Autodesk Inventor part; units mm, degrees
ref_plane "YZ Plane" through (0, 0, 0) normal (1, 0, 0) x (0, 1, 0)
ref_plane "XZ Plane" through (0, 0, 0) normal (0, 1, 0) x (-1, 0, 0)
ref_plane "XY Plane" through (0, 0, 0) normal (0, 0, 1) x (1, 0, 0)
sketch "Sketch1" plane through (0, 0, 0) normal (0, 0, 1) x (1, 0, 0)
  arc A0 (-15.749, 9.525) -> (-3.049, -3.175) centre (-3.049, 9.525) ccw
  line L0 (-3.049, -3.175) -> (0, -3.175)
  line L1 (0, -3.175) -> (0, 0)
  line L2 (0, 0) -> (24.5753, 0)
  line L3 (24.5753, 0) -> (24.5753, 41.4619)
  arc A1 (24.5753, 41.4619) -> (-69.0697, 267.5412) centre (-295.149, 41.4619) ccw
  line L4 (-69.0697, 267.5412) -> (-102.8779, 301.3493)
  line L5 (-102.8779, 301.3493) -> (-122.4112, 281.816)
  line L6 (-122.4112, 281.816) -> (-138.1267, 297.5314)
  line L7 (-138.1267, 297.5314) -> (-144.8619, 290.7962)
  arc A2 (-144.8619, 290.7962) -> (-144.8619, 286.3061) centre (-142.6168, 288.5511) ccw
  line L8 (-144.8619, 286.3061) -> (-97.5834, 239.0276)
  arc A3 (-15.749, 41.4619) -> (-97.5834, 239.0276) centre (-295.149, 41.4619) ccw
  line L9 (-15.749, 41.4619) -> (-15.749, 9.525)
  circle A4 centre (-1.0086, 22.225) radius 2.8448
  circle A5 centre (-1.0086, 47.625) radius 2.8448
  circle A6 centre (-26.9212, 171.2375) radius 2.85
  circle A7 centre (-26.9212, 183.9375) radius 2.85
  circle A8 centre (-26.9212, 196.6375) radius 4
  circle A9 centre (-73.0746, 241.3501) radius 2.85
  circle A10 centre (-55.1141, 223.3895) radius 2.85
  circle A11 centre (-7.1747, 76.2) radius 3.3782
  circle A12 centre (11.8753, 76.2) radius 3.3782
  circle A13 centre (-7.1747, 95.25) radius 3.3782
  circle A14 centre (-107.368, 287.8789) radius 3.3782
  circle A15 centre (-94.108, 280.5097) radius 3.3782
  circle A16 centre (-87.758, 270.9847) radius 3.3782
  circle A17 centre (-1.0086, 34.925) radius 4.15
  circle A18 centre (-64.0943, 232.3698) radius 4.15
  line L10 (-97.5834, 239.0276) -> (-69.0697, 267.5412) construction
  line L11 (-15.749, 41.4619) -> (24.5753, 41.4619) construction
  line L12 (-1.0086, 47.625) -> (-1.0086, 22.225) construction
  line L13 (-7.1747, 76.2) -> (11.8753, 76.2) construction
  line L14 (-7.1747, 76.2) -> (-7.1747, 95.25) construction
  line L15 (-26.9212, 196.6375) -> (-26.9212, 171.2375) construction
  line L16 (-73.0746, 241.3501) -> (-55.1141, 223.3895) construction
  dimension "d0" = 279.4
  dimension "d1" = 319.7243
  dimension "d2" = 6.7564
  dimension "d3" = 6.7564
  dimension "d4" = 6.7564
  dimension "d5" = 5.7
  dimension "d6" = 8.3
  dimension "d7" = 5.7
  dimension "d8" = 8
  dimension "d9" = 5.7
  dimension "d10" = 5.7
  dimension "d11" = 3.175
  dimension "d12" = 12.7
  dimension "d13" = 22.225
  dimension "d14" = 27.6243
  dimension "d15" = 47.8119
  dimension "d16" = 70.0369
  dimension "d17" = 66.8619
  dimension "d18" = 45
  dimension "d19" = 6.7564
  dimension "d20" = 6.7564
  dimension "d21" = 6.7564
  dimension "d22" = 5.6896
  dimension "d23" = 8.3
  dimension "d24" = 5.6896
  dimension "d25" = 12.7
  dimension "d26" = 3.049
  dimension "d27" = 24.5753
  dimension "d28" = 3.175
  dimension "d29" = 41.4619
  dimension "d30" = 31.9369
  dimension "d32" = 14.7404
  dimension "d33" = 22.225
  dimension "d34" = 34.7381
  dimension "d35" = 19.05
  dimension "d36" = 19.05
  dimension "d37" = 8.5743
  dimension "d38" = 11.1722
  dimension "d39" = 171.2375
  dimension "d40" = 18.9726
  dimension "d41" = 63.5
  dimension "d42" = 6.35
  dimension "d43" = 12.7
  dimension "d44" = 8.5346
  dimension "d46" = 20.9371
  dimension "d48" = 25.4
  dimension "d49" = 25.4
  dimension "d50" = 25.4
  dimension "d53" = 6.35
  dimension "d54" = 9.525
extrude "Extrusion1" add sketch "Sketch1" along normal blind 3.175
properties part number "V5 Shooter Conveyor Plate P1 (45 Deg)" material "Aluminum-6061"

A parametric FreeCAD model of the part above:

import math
import FreeCAD as App
import Part
import Sketcher
Q = App.Units.Quantity

doc = App.newDocument("Part")
body = doc.addObject("PartDesign::Body", "Body")

sketch1 = doc.addObject("Sketcher::SketchObject", "Sketch")
body.addObject(sketch1)
sketch1.AttachmentSupport = (doc.XY_Plane, [""])
sketch1.MapMode = "FlatFace"
sketch1.addGeometry(Part.LineSegment(App.Vector(-15.7, 41.5, 0), App.Vector(-15.7, 9.5, 0)), False)
sketch1.addGeometry(Part.ArcOfCircle(Part.Circle(App.Vector(-3, 9.5, 0), App.Vector(0, 0, 1), 12.7), math.radians(180), math.radians(270)), False)
sketch1.addGeometry(Part.LineSegment(App.Vector(-3, -3.2, 0), App.Vector(0, -3.2, 0)), False)
sketch1.addGeometry(Part.LineSegment(App.Vector(0, -3.2, 0), App.Vector(0, 0, 0)), False)
sketch1.addGeometry(Part.LineSegment(App.Vector(0, 0, 0), App.Vector(24.6, 0, 0)), False)
sketch1.addGeometry(Part.LineSegment(App.Vector(24.6, 0, 0), App.Vector(24.6, 41.5, 0)), False)
sketch1.addGeometry(Part.ArcOfCircle(Part.Circle(App.Vector(-295.1, 41.5, 0), App.Vector(0, 0, 1), 319.7), math.radians(0), math.radians(45)), False)
sketch1.addGeometry(Part.LineSegment(App.Vector(-69.1, 267.5, 0), App.Vector(-102.9, 301.3, 0)), False)
sketch1.addGeometry(Part.LineSegment(App.Vector(-102.9, 301.3, 0), App.Vector(-122.4, 281.8, 0)), False)
sketch1.addGeometry(Part.LineSegment(App.Vector(-122.4, 281.8, 0), App.Vector(-138.1, 297.5, 0)), False)
sketch1.addGeometry(Part.LineSegment(App.Vector(-138.1, 297.5, 0), App.Vector(-144.9, 290.8, 0)), False)
sketch1.addGeometry(Part.ArcOfCircle(Part.Circle(App.Vector(-142.6, 288.6, 0), App.Vector(0, 0, 1), 3.2), math.radians(135), math.radians(225)), False)
sketch1.addGeometry(Part.LineSegment(App.Vector(-144.9, 286.3, 0), App.Vector(-97.6, 239, 0)), False)
sketch1.addGeometry(Part.ArcOfCircle(Part.Circle(App.Vector(-295.1, 41.5, 0), App.Vector(0, 0, 1), 279.4), math.radians(0), math.radians(45)), False)
sketch1.addGeometry(Part.Circle(App.Vector(-1, 22.2, 0), App.Vector(0, 0, 1), 2.8), False)
sketch1.addGeometry(Part.Circle(App.Vector(-1, 34.9, 0), App.Vector(0, 0, 1), 4.2), False)
sketch1.addGeometry(Part.Circle(App.Vector(-1, 47.6, 0), App.Vector(0, 0, 1), 2.8), False)
sketch1.addGeometry(Part.Circle(App.Vector(-7.2, 76.2, 0), App.Vector(0, 0, 1), 3.4), False)
sketch1.addGeometry(Part.Circle(App.Vector(-7.2, 95.2, 0), App.Vector(0, 0, 1), 3.4), False)
sketch1.addGeometry(Part.Circle(App.Vector(11.9, 76.2, 0), App.Vector(0, 0, 1), 3.4), False)
sketch1.addGeometry(Part.Circle(App.Vector(-107.4, 287.9, 0), App.Vector(0, 0, 1), 3.4), False)
sketch1.addGeometry(Part.Circle(App.Vector(-73.1, 241.4, 0), App.Vector(0, 0, 1), 2.9), False)
sketch1.addGeometry(Part.Circle(App.Vector(-64.1, 232.4, 0), App.Vector(0, 0, 1), 4.2), False)
sketch1.addGeometry(Part.Circle(App.Vector(-94.1, 280.5, 0), App.Vector(0, 0, 1), 3.4), False)
sketch1.addGeometry(Part.Circle(App.Vector(-87.8, 271, 0), App.Vector(0, 0, 1), 3.4), False)
sketch1.addGeometry(Part.Circle(App.Vector(-26.9, 171.2, 0), App.Vector(0, 0, 1), 2.9), False)
sketch1.addGeometry(Part.Circle(App.Vector(-26.9, 183.9, 0), App.Vector(0, 0, 1), 2.9), False)
sketch1.addGeometry(Part.Circle(App.Vector(-55.1, 223.4, 0), App.Vector(0, 0, 1), 2.9), False)
sketch1.addGeometry(Part.Circle(App.Vector(-26.9, 196.6, 0), App.Vector(0, 0, 1), 4), False)
sketch1.addConstraint(Sketcher.Constraint("Tangent", 0, 2, 1, 1))
sketch1.addConstraint(Sketcher.Constraint("Tangent", 1, 2, 2, 1))
sketch1.addConstraint(Sketcher.Constraint("Coincident", 2, 2, 3, 1))
sketch1.addConstraint(Sketcher.Constraint("Coincident", 3, 2, 4, 1))
sketch1.addConstraint(Sketcher.Constraint("Coincident", 4, 2, 5, 1))
sketch1.addConstraint(Sketcher.Constraint("Tangent", 5, 2, 6, 1))
sketch1.addConstraint(Sketcher.Constraint("Tangent", 6, 2, 7, 1))
sketch1.addConstraint(Sketcher.Constraint("Coincident", 7, 2, 8, 1))
sketch1.addConstraint(Sketcher.Constraint("Coincident", 8, 2, 9, 1))
sketch1.addConstraint(Sketcher.Constraint("Coincident", 9, 2, 10, 1))
sketch1.addConstraint(Sketcher.Constraint("Tangent", 10, 2, 11, 1))
sketch1.addConstraint(Sketcher.Constraint("Tangent", 11, 2, 12, 1))
sketch1.addConstraint(Sketcher.Constraint("Tangent", 12, 2, 13, 2))
sketch1.addConstraint(Sketcher.Constraint("Tangent", 13, 1, 0, 1))
sketch1.addConstraint(Sketcher.Constraint("Vertical", 0))
sketch1.addConstraint(Sketcher.Constraint("Horizontal", 2))
sketch1.addConstraint(Sketcher.Constraint("Vertical", 3))
sketch1.addConstraint(Sketcher.Constraint("Horizontal", 4))
sketch1.addConstraint(Sketcher.Constraint("Vertical", 5))
sketch1.addConstraint(Sketcher.Constraint("Coincident", 3, 2, -1, 1))
sketch1.addConstraint(Sketcher.Constraint("Coincident", 13, 3, 6, 3))
sketch1.addConstraint(Sketcher.Constraint("Equal", 14, 16))
sketch1.addConstraint(Sketcher.Constraint("Equal", 17, 18))
sketch1.addConstraint(Sketcher.Constraint("Equal", 18, 19))
sketch1.addConstraint(Sketcher.Constraint("Equal", 19, 20))
sketch1.addConstraint(Sketcher.Constraint("Equal", 15, 22))
sketch1.addConstraint(Sketcher.Constraint("Equal", 20, 23))
sketch1.addConstraint(Sketcher.Constraint("Equal", 23, 24))
sketch1.addConstraint(Sketcher.Constraint("Equal", 21, 25))
sketch1.addConstraint(Sketcher.Constraint("Equal", 25, 26))
sketch1.addConstraint(Sketcher.Constraint("Equal", 26, 27))
sketch1.addConstraint(Sketcher.Constraint("Perpendicular", 7, 8))
sketch1.addConstraint(Sketcher.Constraint("Perpendicular", 8, 9))
sketch1.addConstraint(Sketcher.Constraint("Perpendicular", 9, 10))
sketch1.addConstraint(Sketcher.Constraint("Perpendicular", 10, 12))
sketch1.addConstraint(Sketcher.Constraint("Horizontal", 17, 3, 19, 3))
sketch1.addConstraint(Sketcher.Constraint("Vertical", 14, 3, 15, 3))
sketch1.addConstraint(Sketcher.Constraint("Vertical", 15, 3, 16, 3))
sketch1.addConstraint(Sketcher.Constraint("Vertical", 17, 3, 18, 3))
sketch1.addConstraint(Sketcher.Constraint("Vertical", 25, 3, 26, 3))
sketch1.addConstraint(Sketcher.Constraint("Vertical", 26, 3, 28, 3))
sketch1.addConstraint(Sketcher.Constraint("Vertical", 10, 2, 11, 2))
sketch1.addConstraint(Sketcher.Constraint("Radius", 13, Q("11 in")))
sketch1.addConstraint(Sketcher.Constraint("Radius", 1, Q("0.5 in")))
sketch1.addConstraint(Sketcher.Constraint("Diameter", 14, Q("0.224 in")))
sketch1.addConstraint(Sketcher.Constraint("Diameter", 17, Q("0.266 in")))
sketch1.addConstraint(Sketcher.Constraint("Radius", 11, Q("0.125 in")))
sketch1.addConstraint(Sketcher.Constraint("DistanceY", 1, 3, 15, 3, Q("1 in")))
sketch1.addConstraint(Sketcher.Constraint("DistanceY", 14, 3, 16, 3, Q("1 in")))
sketch1.addConstraint(Sketcher.Constraint("DistanceY", 25, 3, 28, 3, Q("1 in")))
sketch1.addConstraint(Sketcher.Constraint("DistanceY", 1, 2, 14, 3, Q("1 in")))
sketch1.addConstraint(Sketcher.Constraint("Diameter", 21, Q("0.2244 in")))
sketch1.addConstraint(Sketcher.Constraint("DistanceY", 25, 3, 26, 3, Q("0.5 in")))
sketch1.addConstraint(Sketcher.Constraint("DistanceX", 19, 3, 5, 2, Q("0.5 in")))
sketch1.addConstraint(Sketcher.Constraint("Diameter", 15, 8.3))
sketch1.addConstraint(Sketcher.Constraint("Diameter", 28, 8.0))
sketch1.addConstraint(Sketcher.Constraint("DistanceY", 3, 1, 3, 2, Q("0.125 in")))
sketch1.addConstraint(Sketcher.Constraint("Radius", 6, 319.7243))
sketch1.addConstraint(Sketcher.Constraint("DistanceY", 17, 3, 18, 3, Q("0.75 in")))
sketch1.addConstraint(Sketcher.Constraint("DistanceX", 17, 3, 19, 3, Q("0.75 in")))
sketch1.addConstraint(Sketcher.Constraint("DistanceX", 23, 3, 24, 3, Q("0.25 in")))
sketch1.addConstraint(Sketcher.Constraint("Distance", 9, Q("0.875 in")))
sketch1.addConstraint(Sketcher.Constraint("Distance", 10, Q("0.375 in")))
sketch1.addConstraint(Sketcher.Constraint("DistanceY", -1, 1, 17, 3, Q("3 in")))
sketch1.addConstraint(Sketcher.Constraint("DistanceY", 24, 3, 23, 3, Q("0.375 in")))
sketch1.addConstraint(Sketcher.Constraint("DistanceX", 2, 1, 2, 2, 3.049))
sketch1.addConstraint(Sketcher.Constraint("DistanceY", 0, 2, 0, 1, 31.937))
sketch1.addConstraint(Sketcher.Constraint("Distance", 7, 47.812))
sketch1.addConstraint(Sketcher.Constraint("DistanceY", -1, 1, 25, 3, 171.2375))
sketch1.addConstraint(Sketcher.Constraint("DistanceX", 0, 2, 14, 3, 14.7404))
sketch1.addConstraint(Sketcher.Constraint("DistanceX", 22, 3, -1, 1, Q("2.5234 in")))
sketch1.addConstraint(Sketcher.Constraint("DistanceY", -1, 1, 23, 3, Q("11.0437 in")))
sketch1.addConstraint(Sketcher.Constraint("DistanceX", 25, 3, -1, 1, Q("1.0599 in")))
sketch1.addConstraint(Sketcher.Constraint("DistanceY", 21, 3, 11, 3, Q("1.8583 in")))
sketch1.addConstraint(Sketcher.Constraint("DistanceX", 20, 3, 22, 3, Q("1.7037 in")))
sketch1.addConstraint(Sketcher.Constraint("DistanceY", 22, 3, 20, 3, Q("2.1854 in")))
sketch1.addConstraint(Sketcher.Constraint("DistanceX", 11, 3, 23, 3, Q("1.9098 in")))
sketch1.addConstraint(Sketcher.Constraint("DistanceX", 21, 3, 27, 3, Q("0.7071 in")))
sketch1.addConstraint(Sketcher.Constraint("DistanceY", 27, 3, 21, 3, Q("0.7071 in")))
sketch1.addConstraint(Sketcher.Constraint("DistanceX", 24, 3, 27, 3, Q("1.2852 in")))
sketch1.addConstraint(Sketcher.Constraint("DistanceY", 22, 3, 6, 2, Q("1.3847 in")))
pad1 = doc.addObject("PartDesign::Pad", "Pad")
body.addObject(pad1)
pad1.Profile = sketch1
pad1.Length = Q("0.125 in")

doc.recompute()
